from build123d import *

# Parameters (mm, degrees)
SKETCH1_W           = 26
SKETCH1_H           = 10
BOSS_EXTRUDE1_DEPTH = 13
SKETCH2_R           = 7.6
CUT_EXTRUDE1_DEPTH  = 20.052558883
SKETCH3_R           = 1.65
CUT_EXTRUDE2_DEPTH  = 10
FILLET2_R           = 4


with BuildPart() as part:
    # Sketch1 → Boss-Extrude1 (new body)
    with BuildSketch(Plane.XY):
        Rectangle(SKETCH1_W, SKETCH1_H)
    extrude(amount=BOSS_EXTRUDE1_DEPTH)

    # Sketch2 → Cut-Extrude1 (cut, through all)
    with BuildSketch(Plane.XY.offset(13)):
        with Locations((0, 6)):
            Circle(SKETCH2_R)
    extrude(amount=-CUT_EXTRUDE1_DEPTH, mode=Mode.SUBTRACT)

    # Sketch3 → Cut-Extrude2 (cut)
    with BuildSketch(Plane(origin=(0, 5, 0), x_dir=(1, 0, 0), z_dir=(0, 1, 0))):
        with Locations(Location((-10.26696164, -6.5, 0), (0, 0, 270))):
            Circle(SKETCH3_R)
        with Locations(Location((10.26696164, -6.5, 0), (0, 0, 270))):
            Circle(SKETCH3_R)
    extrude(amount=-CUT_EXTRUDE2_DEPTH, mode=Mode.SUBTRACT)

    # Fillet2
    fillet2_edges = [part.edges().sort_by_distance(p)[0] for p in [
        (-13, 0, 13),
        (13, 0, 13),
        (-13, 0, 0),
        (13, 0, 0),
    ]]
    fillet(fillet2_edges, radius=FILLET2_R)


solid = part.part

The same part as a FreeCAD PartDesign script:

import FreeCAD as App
import Part
import Sketcher


def edges_at(feature, points):
    """Names of the edges that pass closest to the given points."""
    edges = feature.Shape.Edges
    near = lambda p: min(range(len(edges)), key=lambda i: edges[i].distToShape(Part.Vertex(*p))[0])
    return sorted({f"Edge{near(p) + 1}" for p in points})


def add_polygon(sketch, points):
    """Adds a closed chain of lines whose ends are joined by coincident constraints."""
    first, n = sketch.GeometryCount, len(points)
    for a, b in zip(points, points[1:] + points[:1]):
        sketch.addGeometry(Part.LineSegment(App.Vector(*a, 0), App.Vector(*b, 0)), False)
    for i in range(n):
        sketch.addConstraint(Sketcher.Constraint("Coincident", first + i, 2, first + (i + 1) % n, 1))

doc = App.newDocument("Part")
body = doc.addObject("PartDesign::Body", "Body")

sketch1 = doc.addObject("Sketcher::SketchObject", "Sketch")
body.addObject(sketch1)
sketch1.AttachmentSupport = (doc.XY_Plane, [""])
sketch1.MapMode = "FlatFace"
add_polygon(sketch1, [(-13, 5), (-13, -5), (13, -5), (13, 5)])
sketch1.addConstraint(Sketcher.Constraint("Vertical", 0))
sketch1.addConstraint(Sketcher.Constraint("Horizontal", 1))
sketch1.addConstraint(Sketcher.Constraint("Vertical", 2))
sketch1.addConstraint(Sketcher.Constraint("Horizontal", 3))
sketch1.addConstraint(Sketcher.Constraint("Symmetric", 0, 2, 2, 2, -1, 1))
sketch1.addConstraint(Sketcher.Constraint("DistanceX", 1, 1, 1, 2, 26.0))
sketch1.addConstraint(Sketcher.Constraint("DistanceY", 0, 2, 0, 1, 10.0))
pad1 = doc.addObject("PartDesign::Pad", "Pad")
body.addObject(pad1)
pad1.Profile = sketch1
pad1.Length = 13

sketch2 = doc.addObject("Sketcher::SketchObject", "Sketch001")
body.addObject(sketch2)
sketch2.AttachmentSupport = (doc.XY_Plane, [""])
sketch2.MapMode = "FlatFace"
sketch2.AttachmentOffset = App.Placement(App.Vector(0, 0, 13), App.Rotation())
sketch2.addGeometry(Part.Circle(App.Vector(0, 6, 0), App.Vector(0, 0, 1), 8), False)
sketch2.addConstraint(Sketcher.Constraint("PointOnObject", 0, 3, -2))
sketch2.addConstraint(Sketcher.Constraint("Diameter", 0, 15.2))
sketch2.addConstraint(Sketcher.Constraint("DistanceY", -1, 1, 0, 3, 6.0))
pocket1 = doc.addObject("PartDesign::Pocket", "Pocket")
body.addObject(pocket1)
pocket1.Profile = sketch2
pocket1.Type = "ThroughAll"

sketch3 = doc.addObject("Sketcher::SketchObject", "Sketch002")
body.addObject(sketch3)
sketch3.AttachmentSupport = (doc.XZ_Plane, [""])
sketch3.MapMode = "FlatFace"
sketch3.AttachmentOffset = App.Placement(App.Vector(0, 0, -5), App.Rotation())
sketch3.addGeometry(Part.Circle(App.Vector(-10.3, 6.5, 0), App.Vector(0, 0, 1), 1.6), False)
sketch3.addGeometry(Part.Circle(App.Vector(10.3, 6.5, 0), App.Vector(0, 0, 1), 1.6), False)
sketch3.addConstraint(Sketcher.Constraint("Equal", 0, 1))
sketch3.addConstraint(Sketcher.Constraint("Symmetric", 0, 3, 1, 3, -2))
sketch3.addConstraint(Sketcher.Constraint("Diameter", 0, 3.3))
sketch3.addConstraint(Sketcher.Constraint("DistanceY", -1, 1, 0, 3, 6.5))
sketch3.addConstraint(Sketcher.Constraint("DistanceX", 0, 3, -1, 1, 10.266962))
pocket2 = doc.addObject("PartDesign::Pocket", "Pocket001")
body.addObject(pocket2)
pocket2.Profile = sketch3
pocket2.Length = 10
pocket2.Reversed = True
doc.recompute()

fillet = doc.addObject("PartDesign::Fillet", "Fillet")
body.addObject(fillet)
fillet.Base = (pocket2, edges_at(pocket2, [
    (-13, 0, 13),
    (13, 0, 13),
    (-13, 0, 0),
    (13, 0, 0),
]))
fillet.Radius = 4

doc.recompute()
